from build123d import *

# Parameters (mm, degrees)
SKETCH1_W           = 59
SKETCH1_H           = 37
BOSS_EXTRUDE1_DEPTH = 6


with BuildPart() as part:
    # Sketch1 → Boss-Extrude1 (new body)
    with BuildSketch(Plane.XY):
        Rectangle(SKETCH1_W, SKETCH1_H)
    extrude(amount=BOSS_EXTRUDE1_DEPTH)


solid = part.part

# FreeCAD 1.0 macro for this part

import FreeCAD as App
import Part
import Sketcher


def add_polygon(sketch, points):
    """Adds a closed chain of lines whose ends are joined by coincident constraints."""
    first, n = sketch.GeometryCount, len(points)
    for a, b in zip(points, points[1:] + points[:1]):
        sketch.addGeometry(Part.LineSegment(App.Vector(*a, 0), App.Vector(*b, 0)), False)
    for i in range(n):
        sketch.addConstraint(Sketcher.Constraint("Coincident", first + i, 2, first + (i + 1) % n, 1))

doc = App.newDocument("Part")
body = doc.addObject("PartDesign::Body", "Body")

# Sketch on XY plane
sketch1 = doc.addObject("Sketcher::SketchObject", "Sketch")
body.addObject(sketch1)
sketch1.AttachmentSupport = (doc.XY_Plane, [""])
sketch1.MapMode = "FlatFace"
add_polygon(sketch1, [(-29.5, 18.5), (-29.5, -18.5), (29.5, -18.5), (29.5, 18.5)])  # lines 0-3
sketch1.addConstraint([
    Sketcher.Constraint("Vertical", 0),
    Sketcher.Constraint("Horizontal", 1),
    Sketcher.Constraint("Vertical", 2),
    Sketcher.Constraint("Horizontal", 3),
    Sketcher.Constraint("Symmetric", 0, 2, 2, 2, -1, 1),
    Sketcher.Constraint("DistanceX", 1, 1, 1, 2, 59.0),
    Sketcher.Constraint("DistanceY", 0, 2, 0, 1, 37.0),
])
pad1 = doc.addObject("PartDesign::Pad", "Pad")
body.addObject(pad1)
pad1.Profile = sketch1
pad1.Length = 6

doc.recompute()
